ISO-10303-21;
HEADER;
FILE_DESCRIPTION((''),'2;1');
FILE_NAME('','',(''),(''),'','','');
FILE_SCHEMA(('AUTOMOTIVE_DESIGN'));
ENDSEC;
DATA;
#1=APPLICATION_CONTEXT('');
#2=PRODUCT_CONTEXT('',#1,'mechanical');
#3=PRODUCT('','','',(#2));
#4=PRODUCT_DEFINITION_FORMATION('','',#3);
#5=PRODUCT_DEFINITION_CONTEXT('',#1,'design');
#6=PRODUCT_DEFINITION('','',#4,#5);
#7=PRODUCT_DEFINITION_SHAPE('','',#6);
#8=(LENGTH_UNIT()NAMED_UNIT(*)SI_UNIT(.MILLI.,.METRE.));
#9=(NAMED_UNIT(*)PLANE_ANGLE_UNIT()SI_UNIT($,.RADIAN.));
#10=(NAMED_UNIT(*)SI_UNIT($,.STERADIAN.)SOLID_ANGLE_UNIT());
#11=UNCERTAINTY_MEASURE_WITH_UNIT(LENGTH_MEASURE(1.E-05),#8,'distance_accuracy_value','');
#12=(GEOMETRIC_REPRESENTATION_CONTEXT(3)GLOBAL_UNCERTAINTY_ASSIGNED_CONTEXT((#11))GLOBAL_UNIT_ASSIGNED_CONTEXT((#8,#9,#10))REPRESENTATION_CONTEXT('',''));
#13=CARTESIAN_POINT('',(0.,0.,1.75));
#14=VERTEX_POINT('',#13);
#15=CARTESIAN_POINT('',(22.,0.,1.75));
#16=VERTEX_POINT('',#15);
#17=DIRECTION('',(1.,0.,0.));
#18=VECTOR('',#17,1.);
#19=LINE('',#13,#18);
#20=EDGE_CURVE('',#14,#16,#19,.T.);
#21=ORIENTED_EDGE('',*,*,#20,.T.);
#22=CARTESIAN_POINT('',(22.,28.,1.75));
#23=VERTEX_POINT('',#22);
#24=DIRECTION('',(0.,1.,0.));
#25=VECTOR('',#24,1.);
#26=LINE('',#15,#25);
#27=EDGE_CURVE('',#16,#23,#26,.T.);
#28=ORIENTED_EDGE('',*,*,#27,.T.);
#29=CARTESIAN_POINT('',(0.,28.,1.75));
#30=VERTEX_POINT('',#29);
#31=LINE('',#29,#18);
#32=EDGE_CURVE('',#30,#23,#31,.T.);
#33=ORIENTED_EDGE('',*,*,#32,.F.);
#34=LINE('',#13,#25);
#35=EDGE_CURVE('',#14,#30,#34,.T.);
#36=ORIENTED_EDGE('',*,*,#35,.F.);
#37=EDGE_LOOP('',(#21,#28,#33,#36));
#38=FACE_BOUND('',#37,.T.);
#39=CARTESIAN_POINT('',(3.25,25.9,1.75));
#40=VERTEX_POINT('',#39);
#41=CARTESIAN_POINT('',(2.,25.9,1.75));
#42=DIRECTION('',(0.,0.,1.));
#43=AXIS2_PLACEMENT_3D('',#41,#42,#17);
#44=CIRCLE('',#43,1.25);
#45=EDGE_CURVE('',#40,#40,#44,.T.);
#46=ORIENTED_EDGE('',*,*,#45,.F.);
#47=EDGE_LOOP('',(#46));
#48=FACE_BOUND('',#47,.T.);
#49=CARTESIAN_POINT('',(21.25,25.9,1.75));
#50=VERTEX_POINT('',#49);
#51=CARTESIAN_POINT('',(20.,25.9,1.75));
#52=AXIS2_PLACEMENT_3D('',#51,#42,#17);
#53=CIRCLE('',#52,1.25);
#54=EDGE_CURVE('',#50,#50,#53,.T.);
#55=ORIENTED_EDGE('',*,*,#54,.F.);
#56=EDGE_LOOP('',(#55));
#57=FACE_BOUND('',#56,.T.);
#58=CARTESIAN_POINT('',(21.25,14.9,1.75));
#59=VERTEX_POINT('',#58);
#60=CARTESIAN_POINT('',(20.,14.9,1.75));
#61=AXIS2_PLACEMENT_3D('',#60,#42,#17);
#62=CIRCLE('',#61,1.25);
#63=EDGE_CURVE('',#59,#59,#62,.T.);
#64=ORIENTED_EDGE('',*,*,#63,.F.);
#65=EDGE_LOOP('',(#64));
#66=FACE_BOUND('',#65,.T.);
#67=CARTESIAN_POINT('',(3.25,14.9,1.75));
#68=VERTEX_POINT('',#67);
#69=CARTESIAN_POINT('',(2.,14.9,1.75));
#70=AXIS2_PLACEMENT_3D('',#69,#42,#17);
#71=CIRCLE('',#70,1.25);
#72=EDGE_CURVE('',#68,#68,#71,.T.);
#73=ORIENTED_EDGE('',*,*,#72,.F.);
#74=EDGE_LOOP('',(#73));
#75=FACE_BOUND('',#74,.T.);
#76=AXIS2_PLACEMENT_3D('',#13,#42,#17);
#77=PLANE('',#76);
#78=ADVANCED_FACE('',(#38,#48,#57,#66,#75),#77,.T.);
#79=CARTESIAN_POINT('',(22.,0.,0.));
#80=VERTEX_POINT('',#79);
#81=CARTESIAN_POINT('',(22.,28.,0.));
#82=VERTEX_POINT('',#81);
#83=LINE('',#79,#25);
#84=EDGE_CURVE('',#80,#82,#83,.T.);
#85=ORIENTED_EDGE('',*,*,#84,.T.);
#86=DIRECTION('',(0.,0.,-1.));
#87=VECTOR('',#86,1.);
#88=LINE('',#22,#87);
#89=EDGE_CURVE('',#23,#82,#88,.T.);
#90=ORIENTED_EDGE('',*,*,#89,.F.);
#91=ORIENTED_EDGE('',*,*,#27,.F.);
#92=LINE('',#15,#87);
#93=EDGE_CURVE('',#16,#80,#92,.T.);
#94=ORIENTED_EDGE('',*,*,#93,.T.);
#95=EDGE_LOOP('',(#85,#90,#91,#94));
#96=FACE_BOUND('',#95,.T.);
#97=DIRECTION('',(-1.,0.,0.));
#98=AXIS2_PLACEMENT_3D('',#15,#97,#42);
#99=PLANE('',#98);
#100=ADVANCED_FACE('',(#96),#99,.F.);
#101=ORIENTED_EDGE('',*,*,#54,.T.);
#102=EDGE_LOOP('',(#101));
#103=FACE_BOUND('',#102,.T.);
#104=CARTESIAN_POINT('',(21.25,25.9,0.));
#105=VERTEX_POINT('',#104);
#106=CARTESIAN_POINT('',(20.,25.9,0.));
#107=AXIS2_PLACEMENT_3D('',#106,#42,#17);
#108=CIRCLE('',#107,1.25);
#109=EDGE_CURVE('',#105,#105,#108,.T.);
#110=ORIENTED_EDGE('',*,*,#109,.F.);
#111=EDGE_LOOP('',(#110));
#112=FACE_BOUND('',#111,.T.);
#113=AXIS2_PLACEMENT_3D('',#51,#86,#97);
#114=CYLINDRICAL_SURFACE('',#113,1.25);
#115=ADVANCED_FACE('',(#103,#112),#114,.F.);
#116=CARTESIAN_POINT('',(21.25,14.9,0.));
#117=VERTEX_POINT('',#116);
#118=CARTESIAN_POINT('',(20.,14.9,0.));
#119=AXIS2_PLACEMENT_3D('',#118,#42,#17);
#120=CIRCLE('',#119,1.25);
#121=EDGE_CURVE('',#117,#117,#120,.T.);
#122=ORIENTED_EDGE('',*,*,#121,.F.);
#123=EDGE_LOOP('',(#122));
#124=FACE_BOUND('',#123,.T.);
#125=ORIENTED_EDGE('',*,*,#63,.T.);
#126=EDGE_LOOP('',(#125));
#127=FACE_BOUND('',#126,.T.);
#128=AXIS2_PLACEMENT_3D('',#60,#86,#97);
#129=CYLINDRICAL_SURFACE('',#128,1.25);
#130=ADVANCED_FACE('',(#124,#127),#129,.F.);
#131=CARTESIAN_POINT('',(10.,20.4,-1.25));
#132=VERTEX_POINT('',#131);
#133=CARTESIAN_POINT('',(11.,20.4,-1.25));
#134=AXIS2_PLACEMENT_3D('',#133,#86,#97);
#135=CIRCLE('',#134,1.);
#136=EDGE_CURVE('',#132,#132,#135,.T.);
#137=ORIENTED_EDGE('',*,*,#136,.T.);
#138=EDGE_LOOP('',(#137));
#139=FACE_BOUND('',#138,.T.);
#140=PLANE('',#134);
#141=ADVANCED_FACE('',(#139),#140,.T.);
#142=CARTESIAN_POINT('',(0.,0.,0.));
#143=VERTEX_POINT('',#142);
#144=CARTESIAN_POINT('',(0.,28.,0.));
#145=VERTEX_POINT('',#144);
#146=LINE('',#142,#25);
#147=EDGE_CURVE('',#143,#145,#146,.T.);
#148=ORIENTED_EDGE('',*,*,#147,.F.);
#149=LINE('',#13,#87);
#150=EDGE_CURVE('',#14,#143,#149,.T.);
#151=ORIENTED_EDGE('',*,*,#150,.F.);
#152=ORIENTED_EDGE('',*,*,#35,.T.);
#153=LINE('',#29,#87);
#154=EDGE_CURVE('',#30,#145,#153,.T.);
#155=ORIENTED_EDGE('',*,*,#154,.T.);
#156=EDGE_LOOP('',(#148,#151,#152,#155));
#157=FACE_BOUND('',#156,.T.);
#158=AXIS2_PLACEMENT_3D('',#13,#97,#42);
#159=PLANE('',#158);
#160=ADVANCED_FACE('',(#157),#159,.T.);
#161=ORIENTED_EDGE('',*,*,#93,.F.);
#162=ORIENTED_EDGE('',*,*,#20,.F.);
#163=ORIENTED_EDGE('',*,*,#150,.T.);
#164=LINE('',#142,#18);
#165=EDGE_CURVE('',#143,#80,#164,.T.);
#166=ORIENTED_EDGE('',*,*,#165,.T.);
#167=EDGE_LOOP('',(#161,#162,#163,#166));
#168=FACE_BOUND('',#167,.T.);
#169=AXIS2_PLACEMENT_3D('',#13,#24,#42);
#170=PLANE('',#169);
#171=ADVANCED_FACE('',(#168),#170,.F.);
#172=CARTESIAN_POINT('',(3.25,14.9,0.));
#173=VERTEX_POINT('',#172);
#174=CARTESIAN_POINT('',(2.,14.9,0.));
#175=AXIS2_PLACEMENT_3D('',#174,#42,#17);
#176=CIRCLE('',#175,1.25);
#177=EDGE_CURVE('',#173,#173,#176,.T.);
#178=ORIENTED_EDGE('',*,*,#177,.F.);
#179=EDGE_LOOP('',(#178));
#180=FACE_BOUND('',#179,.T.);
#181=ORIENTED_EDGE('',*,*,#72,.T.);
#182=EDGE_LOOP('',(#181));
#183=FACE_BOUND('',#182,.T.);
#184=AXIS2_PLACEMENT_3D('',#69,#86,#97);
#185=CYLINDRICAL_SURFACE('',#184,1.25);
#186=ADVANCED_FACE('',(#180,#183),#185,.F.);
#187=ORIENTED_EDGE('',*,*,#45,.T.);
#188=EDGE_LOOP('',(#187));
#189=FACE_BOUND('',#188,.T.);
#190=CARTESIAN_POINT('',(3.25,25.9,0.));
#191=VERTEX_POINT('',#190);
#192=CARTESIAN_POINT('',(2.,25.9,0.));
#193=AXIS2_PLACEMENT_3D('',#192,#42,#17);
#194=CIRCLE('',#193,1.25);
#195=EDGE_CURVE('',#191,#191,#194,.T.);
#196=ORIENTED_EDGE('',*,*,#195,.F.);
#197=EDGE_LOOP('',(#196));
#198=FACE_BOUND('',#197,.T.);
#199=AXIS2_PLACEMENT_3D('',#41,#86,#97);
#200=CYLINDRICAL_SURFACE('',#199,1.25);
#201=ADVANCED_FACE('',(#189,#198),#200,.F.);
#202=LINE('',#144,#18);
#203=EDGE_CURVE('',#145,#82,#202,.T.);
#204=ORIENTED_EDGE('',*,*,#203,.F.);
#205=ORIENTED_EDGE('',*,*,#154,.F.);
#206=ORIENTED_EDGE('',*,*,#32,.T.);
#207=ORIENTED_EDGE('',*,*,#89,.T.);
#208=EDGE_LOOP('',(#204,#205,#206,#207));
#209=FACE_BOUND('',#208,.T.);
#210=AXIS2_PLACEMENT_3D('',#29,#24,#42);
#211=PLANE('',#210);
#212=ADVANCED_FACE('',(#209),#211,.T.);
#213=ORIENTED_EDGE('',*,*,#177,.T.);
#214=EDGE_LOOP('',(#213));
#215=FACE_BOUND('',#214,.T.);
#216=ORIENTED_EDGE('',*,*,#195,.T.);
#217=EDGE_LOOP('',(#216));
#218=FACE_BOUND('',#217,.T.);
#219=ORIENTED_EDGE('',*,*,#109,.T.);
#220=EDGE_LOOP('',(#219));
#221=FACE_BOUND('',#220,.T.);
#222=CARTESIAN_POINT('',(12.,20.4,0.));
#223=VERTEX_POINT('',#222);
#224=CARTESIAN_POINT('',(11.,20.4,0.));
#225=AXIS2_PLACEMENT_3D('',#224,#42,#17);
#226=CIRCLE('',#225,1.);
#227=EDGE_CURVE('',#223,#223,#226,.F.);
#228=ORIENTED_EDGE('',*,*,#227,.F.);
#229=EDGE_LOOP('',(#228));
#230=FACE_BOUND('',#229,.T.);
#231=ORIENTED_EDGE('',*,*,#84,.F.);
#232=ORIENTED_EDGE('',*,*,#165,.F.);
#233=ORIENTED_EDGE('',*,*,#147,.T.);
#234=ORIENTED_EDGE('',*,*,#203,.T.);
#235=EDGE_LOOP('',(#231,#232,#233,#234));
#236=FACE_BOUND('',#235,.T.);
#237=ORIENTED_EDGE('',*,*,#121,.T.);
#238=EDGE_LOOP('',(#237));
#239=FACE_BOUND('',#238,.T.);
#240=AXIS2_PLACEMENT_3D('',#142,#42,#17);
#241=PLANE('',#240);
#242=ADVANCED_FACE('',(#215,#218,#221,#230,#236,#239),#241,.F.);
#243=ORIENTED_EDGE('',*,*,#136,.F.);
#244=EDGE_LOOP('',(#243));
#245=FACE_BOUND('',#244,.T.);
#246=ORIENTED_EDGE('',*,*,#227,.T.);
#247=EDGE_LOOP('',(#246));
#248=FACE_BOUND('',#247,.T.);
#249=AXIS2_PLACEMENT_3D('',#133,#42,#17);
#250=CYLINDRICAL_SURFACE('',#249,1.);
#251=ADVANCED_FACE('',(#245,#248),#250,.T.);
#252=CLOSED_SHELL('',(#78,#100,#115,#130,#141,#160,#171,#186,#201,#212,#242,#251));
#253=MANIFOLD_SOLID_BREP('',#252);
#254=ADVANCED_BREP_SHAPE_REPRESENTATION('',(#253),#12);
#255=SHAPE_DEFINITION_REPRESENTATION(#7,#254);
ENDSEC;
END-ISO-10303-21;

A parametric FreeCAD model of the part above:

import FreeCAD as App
import Part
import Sketcher
from FreeCAD import Vector


def add_polygon(sketch, points):
    """Adds a closed chain of lines whose ends are joined by coincident constraints."""
    first, n = sketch.GeometryCount, len(points)
    for a, b in zip(points, points[1:] + points[:1]):
        sketch.addGeometry(Part.LineSegment(App.Vector(*a, 0), App.Vector(*b, 0)), False)
    for i in range(n):
        sketch.addConstraint(Sketcher.Constraint("Coincident", first + i, 2, first + (i + 1) % n, 1))

doc = App.newDocument("Part")
body = doc.addObject("PartDesign::Body", "Body")

sketch1 = body.newObject("Sketcher::SketchObject", "Sketch")
sketch1.AttachmentSupport = (doc.getObject("XY_Plane"), [""])
sketch1.MapMode = "FlatFace"
add_polygon(sketch1, [(0, 28), (0, 0), (22, 0), (22, 28)])
sketch1.addGeometry(Part.Circle(Vector(2, 14.9, 0), Vector(0, 0, 1), 1.25), False)
sketch1.addGeometry(Part.Circle(Vector(20, 14.9, 0), Vector(0, 0, 1), 1.25), False)
sketch1.addGeometry(Part.Circle(Vector(2, 25.9, 0), Vector(0, 0, 1), 1.25), False)
sketch1.addGeometry(Part.Circle(Vector(20, 25.9, 0), Vector(0, 0, 1), 1.25), False)
sketch1.addConstraint([
    Sketcher.Constraint("Vertical", 0),
    Sketcher.Constraint("Horizontal", 1),
    Sketcher.Constraint("Vertical", 2),
    Sketcher.Constraint("Horizontal", 3),
    Sketcher.Constraint("Coincident", 0, 2, -1, 1),
    Sketcher.Constraint("Equal", 4, 5),
    Sketcher.Constraint("Equal", 5, 6),
    Sketcher.Constraint("Equal", 6, 7),
    Sketcher.Constraint("Horizontal", 4, 3, 5, 3),
    Sketcher.Constraint("Horizontal", 6, 3, 7, 3),
    Sketcher.Constraint("Vertical", 4, 3, 6, 3),
    Sketcher.Constraint("Vertical", 5, 3, 7, 3),
    Sketcher.Constraint("Diameter", 4, 2.5),
    Sketcher.Constraint("DistanceX", 1, 1, 1, 2, 22.0),
    Sketcher.Constraint("DistanceY", 0, 2, 0, 1, 28.0),
    Sketcher.Constraint("DistanceX", -1, 1, 4, 3, 2.0),
    Sketcher.Constraint("DistanceX", -1, 1, 5, 3, 20.0),
    Sketcher.Constraint("DistanceY", 4, 3, 6, 3, 11.0),
    Sketcher.Constraint("DistanceY", -1, 1, 4, 3, 14.9),
])
pad1 = body.newObject("PartDesign::Pad", "Pad")
pad1.Profile = sketch1
pad1.Length = 1.75

sketch2 = body.newObject("Sketcher::SketchObject", "Sketch001")
sketch2.AttachmentSupport = (doc.getObject("XY_Plane"), [""])
sketch2.MapMode = "FlatFace"
sketch2.addGeometry(Part.Circle(Vector(11, 20.4, 0), Vector(0, 0, 1), 1), False)
sketch2.addConstraint([
    Sketcher.Constraint("Diameter", 0, 2.0),
    Sketcher.Constraint("DistanceX", -1, 1, 0, 3, 11.0),
    Sketcher.Constraint("DistanceY", -1, 1, 0, 3, 20.4),
])
pad2 = body.newObject("PartDesign::Pad", "Pad001")
pad2.Profile = sketch2
pad2.Length = 1.25
pad2.Reversed = True

doc.recompute()
